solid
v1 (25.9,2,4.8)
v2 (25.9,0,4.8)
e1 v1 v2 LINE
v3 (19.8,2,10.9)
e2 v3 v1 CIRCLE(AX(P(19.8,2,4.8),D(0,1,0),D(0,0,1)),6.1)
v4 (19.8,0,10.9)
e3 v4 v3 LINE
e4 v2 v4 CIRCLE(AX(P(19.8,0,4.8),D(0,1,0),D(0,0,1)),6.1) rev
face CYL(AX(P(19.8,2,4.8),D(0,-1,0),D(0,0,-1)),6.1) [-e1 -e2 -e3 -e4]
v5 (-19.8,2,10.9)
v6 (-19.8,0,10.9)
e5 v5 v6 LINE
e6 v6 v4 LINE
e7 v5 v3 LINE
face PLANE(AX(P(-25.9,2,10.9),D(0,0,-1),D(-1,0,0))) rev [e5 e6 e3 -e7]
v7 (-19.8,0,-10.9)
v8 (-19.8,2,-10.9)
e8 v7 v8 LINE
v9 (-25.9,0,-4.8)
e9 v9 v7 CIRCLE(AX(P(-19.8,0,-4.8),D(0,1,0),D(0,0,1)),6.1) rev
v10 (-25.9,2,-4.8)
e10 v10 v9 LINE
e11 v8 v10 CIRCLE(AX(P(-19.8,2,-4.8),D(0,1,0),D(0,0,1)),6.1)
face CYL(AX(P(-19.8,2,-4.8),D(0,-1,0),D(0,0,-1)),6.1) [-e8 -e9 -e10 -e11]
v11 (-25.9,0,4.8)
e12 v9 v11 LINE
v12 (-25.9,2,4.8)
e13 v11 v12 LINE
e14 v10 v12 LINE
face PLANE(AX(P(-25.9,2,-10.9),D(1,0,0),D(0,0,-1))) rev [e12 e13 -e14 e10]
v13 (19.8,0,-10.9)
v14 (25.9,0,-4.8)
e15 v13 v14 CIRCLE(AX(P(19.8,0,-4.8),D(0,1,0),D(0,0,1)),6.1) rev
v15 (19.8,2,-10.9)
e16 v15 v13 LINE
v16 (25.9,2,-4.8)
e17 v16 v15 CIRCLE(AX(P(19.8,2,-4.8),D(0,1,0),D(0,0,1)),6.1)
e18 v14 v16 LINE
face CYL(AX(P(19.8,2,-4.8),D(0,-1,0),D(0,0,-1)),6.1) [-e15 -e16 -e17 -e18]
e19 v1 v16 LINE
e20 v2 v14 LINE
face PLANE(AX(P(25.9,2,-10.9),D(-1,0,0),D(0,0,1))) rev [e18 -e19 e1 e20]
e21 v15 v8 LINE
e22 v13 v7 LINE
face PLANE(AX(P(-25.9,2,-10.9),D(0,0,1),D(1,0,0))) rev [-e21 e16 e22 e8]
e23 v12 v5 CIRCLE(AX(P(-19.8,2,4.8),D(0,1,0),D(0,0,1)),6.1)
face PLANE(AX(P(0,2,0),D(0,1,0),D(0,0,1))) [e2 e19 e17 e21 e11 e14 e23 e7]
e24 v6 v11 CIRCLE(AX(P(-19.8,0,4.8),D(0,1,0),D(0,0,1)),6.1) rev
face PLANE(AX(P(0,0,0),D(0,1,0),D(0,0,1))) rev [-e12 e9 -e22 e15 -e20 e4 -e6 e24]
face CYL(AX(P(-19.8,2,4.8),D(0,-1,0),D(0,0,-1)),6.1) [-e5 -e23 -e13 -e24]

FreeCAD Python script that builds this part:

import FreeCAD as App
import Part
import Sketcher
from FreeCAD import Vector


def edges_at(feature, points):
    """Names of the edges that pass closest to the given points."""
    edges = feature.Shape.Edges
    near = lambda p: min(range(len(edges)), key=lambda i: edges[i].distToShape(Part.Vertex(*p))[0])
    return sorted({f"Edge{near(p) + 1}" for p in points})


def add_polygon(sketch, points):
    """Adds a closed chain of lines whose ends are joined by coincident constraints."""
    first, n = sketch.GeometryCount, len(points)
    for a, b in zip(points, points[1:] + points[:1]):
        sketch.addGeometry(Part.LineSegment(App.Vector(*a, 0), App.Vector(*b, 0)), False)
    for i in range(n):
        sketch.addConstraint(Sketcher.Constraint("Coincident", first + i, 2, first + (i + 1) % n, 1))

doc = App.newDocument("Part")
body = doc.addObject("PartDesign::Body", "Body")

sketch1 = doc.addObject("Sketcher::SketchObject", "Sketch")
body.addObject(sketch1)
sketch1.AttachmentSupport = (doc.XZ_Plane, [""])
sketch1.MapMode = "FlatFace"
add_polygon(sketch1, [(-26, -11), (-26, 11), (26, 11), (26, -11)])
sketch1.addConstraint([
    Sketcher.Constraint("Vertical", 0),
    Sketcher.Constraint("Horizontal", 1),
    Sketcher.Constraint("Vertical", 2),
    Sketcher.Constraint("Horizontal", 3),
    Sketcher.Constraint("Symmetric", 0, 2, 2, 2, -1, 1),
    Sketcher.Constraint("DistanceX", 1, 1, 1, 2, 51.8),
    Sketcher.Constraint("DistanceY", 0, 1, 0, 2, 21.8),
])
pad1 = doc.addObject("PartDesign::Pad", "Pad")
body.addObject(pad1)
pad1.Profile = sketch1
pad1.Length = 2
pad1.Reversed = True
doc.recompute()

fillet = doc.addObject("PartDesign::Fillet", "Fillet")
body.addObject(fillet)
fillet.Base = (pad1, edges_at(pad1, [
    (25.9, 1, 10.9),
    (-25.9, 1, 10.9),
    (-25.9, 1, -10.9),
    (25.9, 1, -10.9),
]))
fillet.Radius = 6.1

doc.recompute()
